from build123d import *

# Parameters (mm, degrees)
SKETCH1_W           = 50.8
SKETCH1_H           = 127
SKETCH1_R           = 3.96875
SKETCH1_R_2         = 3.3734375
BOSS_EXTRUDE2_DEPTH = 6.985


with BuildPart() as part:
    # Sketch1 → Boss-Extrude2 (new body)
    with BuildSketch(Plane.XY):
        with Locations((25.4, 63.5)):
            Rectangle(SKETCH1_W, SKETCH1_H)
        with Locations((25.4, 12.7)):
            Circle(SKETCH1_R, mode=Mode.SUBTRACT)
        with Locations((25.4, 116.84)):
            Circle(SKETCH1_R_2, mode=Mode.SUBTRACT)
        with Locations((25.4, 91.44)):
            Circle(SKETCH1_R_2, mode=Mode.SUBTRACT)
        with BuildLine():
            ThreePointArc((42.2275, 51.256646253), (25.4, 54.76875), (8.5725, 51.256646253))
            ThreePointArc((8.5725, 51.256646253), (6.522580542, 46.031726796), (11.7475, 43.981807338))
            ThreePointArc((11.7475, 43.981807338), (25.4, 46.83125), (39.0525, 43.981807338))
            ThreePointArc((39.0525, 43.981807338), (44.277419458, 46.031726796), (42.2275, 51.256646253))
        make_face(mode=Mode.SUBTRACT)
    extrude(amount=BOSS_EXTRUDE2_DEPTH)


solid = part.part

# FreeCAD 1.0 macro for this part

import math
import FreeCAD as App
import Part
import Sketcher
Q = App.Units.Quantity

doc = App.newDocument("Part")
body = doc.addObject("PartDesign::Body", "Body")

sketch1 = body.newObject("Sketcher::SketchObject", "Sketch")
sketch1.AttachmentSupport = (doc.getObject("XY_Plane"), [""])
sketch1.MapMode = "FlatFace"
sketch1.addGeometry([
    Part.LineSegment(App.Vector(0, 127, 0), App.Vector(0, 0, 0)),
    Part.LineSegment(App.Vector(0, 0, 0), App.Vector(50.8, 0, 0)),
    Part.LineSegment(App.Vector(50.8, 0, 0), App.Vector(50.8, 127, 0)),
    Part.LineSegment(App.Vector(50.8, 127, 0), App.Vector(0, 127, 0)),
    Part.Circle(App.Vector(25.4, 12.7, 0), App.Vector(0, 0, 1), 4),
    Part.ArcOfCircle(Part.Circle(App.Vector(25.4, 12.7, 0), App.Vector(0, 0, 1), 42.1), math.radians(66), math.radians(114)),
    Part.ArcOfCircle(Part.Circle(App.Vector(40.6, 47.6, 0), App.Vector(0, 0, 1), 4), math.radians(-114), math.radians(66)),
    Part.ArcOfCircle(Part.Circle(App.Vector(25.4, 12.7, 0), App.Vector(0, 0, 1), 34.1), math.radians(66), math.radians(114)),
    Part.ArcOfCircle(Part.Circle(App.Vector(10.2, 47.6, 0), App.Vector(0, 0, 1), 4), math.radians(114), math.radians(294)),
    Part.Circle(App.Vector(25.4, 91.4, 0), App.Vector(0, 0, 1), 3.4),
    Part.Circle(App.Vector(25.4, 116.8, 0), App.Vector(0, 0, 1), 3.4),
], False)
sketch1.addConstraint([
    Sketcher.Constraint("Coincident", 0, 2, 1, 1),
    Sketcher.Constraint("Coincident", 1, 2, 2, 1),
    Sketcher.Constraint("Coincident", 2, 2, 3, 1),
    Sketcher.Constraint("Coincident", 3, 2, 0, 1),
    Sketcher.Constraint("Tangent", 5, 1, 6, 2),
    Sketcher.Constraint("Tangent", 6, 1, 7, 1),
    Sketcher.Constraint("Tangent", 7, 2, 8, 2),
    Sketcher.Constraint("Tangent", 8, 1, 5, 2),
    Sketcher.Constraint("Vertical", 0),
    Sketcher.Constraint("Horizontal", 1),
    Sketcher.Constraint("Vertical", 2),
    Sketcher.Constraint("Horizontal", 3),
    Sketcher.Constraint("Coincident", 0, 2, -1, 1),
    Sketcher.Constraint("Coincident", 5, 3, 4, 3),
    Sketcher.Constraint("Coincident", 7, 3, 4, 3),
    Sketcher.Constraint("Equal", 4, 6),
    Sketcher.Constraint("Equal", 9, 10),
    Sketcher.Constraint("Horizontal", 6, 3, 8, 3),
    Sketcher.Constraint("Vertical", 7, 3, 9, 3),
    Sketcher.Constraint("Vertical", 9, 3, 10, 3),
    Sketcher.Constraint("DistanceX", 1, 1, 1, 2, Q("2 in")),
    Sketcher.Constraint("DistanceY", 0, 2, 0, 1, Q("5 in")),
    Sketcher.Constraint("Diameter", 4, Q("0.3125 in")),
    Sketcher.Constraint("Diameter", 9, Q("0.265625 in")),
    Sketcher.Constraint("DistanceX", -1, 1, 4, 3, Q("1 in")),
    Sketcher.Constraint("Radius", 5, Q("1.65625 in")),
    Sketcher.Constraint("DistanceY", 9, 3, 10, 3, Q("1 in")),
    Sketcher.Constraint("DistanceY", -1, 1, 4, 3, Q("0.5 in")),
    Sketcher.Constraint("DistanceX", -1, 1, 6, 3, Q("1.6 in")),
    Sketcher.Constraint("DistanceY", -1, 1, 9, 3, Q("3.6 in")),
])
pad1 = body.newObject("PartDesign::Pad", "Pad")
pad1.Profile = sketch1
pad1.Length = Q("0.275 in")

doc.recompute()
